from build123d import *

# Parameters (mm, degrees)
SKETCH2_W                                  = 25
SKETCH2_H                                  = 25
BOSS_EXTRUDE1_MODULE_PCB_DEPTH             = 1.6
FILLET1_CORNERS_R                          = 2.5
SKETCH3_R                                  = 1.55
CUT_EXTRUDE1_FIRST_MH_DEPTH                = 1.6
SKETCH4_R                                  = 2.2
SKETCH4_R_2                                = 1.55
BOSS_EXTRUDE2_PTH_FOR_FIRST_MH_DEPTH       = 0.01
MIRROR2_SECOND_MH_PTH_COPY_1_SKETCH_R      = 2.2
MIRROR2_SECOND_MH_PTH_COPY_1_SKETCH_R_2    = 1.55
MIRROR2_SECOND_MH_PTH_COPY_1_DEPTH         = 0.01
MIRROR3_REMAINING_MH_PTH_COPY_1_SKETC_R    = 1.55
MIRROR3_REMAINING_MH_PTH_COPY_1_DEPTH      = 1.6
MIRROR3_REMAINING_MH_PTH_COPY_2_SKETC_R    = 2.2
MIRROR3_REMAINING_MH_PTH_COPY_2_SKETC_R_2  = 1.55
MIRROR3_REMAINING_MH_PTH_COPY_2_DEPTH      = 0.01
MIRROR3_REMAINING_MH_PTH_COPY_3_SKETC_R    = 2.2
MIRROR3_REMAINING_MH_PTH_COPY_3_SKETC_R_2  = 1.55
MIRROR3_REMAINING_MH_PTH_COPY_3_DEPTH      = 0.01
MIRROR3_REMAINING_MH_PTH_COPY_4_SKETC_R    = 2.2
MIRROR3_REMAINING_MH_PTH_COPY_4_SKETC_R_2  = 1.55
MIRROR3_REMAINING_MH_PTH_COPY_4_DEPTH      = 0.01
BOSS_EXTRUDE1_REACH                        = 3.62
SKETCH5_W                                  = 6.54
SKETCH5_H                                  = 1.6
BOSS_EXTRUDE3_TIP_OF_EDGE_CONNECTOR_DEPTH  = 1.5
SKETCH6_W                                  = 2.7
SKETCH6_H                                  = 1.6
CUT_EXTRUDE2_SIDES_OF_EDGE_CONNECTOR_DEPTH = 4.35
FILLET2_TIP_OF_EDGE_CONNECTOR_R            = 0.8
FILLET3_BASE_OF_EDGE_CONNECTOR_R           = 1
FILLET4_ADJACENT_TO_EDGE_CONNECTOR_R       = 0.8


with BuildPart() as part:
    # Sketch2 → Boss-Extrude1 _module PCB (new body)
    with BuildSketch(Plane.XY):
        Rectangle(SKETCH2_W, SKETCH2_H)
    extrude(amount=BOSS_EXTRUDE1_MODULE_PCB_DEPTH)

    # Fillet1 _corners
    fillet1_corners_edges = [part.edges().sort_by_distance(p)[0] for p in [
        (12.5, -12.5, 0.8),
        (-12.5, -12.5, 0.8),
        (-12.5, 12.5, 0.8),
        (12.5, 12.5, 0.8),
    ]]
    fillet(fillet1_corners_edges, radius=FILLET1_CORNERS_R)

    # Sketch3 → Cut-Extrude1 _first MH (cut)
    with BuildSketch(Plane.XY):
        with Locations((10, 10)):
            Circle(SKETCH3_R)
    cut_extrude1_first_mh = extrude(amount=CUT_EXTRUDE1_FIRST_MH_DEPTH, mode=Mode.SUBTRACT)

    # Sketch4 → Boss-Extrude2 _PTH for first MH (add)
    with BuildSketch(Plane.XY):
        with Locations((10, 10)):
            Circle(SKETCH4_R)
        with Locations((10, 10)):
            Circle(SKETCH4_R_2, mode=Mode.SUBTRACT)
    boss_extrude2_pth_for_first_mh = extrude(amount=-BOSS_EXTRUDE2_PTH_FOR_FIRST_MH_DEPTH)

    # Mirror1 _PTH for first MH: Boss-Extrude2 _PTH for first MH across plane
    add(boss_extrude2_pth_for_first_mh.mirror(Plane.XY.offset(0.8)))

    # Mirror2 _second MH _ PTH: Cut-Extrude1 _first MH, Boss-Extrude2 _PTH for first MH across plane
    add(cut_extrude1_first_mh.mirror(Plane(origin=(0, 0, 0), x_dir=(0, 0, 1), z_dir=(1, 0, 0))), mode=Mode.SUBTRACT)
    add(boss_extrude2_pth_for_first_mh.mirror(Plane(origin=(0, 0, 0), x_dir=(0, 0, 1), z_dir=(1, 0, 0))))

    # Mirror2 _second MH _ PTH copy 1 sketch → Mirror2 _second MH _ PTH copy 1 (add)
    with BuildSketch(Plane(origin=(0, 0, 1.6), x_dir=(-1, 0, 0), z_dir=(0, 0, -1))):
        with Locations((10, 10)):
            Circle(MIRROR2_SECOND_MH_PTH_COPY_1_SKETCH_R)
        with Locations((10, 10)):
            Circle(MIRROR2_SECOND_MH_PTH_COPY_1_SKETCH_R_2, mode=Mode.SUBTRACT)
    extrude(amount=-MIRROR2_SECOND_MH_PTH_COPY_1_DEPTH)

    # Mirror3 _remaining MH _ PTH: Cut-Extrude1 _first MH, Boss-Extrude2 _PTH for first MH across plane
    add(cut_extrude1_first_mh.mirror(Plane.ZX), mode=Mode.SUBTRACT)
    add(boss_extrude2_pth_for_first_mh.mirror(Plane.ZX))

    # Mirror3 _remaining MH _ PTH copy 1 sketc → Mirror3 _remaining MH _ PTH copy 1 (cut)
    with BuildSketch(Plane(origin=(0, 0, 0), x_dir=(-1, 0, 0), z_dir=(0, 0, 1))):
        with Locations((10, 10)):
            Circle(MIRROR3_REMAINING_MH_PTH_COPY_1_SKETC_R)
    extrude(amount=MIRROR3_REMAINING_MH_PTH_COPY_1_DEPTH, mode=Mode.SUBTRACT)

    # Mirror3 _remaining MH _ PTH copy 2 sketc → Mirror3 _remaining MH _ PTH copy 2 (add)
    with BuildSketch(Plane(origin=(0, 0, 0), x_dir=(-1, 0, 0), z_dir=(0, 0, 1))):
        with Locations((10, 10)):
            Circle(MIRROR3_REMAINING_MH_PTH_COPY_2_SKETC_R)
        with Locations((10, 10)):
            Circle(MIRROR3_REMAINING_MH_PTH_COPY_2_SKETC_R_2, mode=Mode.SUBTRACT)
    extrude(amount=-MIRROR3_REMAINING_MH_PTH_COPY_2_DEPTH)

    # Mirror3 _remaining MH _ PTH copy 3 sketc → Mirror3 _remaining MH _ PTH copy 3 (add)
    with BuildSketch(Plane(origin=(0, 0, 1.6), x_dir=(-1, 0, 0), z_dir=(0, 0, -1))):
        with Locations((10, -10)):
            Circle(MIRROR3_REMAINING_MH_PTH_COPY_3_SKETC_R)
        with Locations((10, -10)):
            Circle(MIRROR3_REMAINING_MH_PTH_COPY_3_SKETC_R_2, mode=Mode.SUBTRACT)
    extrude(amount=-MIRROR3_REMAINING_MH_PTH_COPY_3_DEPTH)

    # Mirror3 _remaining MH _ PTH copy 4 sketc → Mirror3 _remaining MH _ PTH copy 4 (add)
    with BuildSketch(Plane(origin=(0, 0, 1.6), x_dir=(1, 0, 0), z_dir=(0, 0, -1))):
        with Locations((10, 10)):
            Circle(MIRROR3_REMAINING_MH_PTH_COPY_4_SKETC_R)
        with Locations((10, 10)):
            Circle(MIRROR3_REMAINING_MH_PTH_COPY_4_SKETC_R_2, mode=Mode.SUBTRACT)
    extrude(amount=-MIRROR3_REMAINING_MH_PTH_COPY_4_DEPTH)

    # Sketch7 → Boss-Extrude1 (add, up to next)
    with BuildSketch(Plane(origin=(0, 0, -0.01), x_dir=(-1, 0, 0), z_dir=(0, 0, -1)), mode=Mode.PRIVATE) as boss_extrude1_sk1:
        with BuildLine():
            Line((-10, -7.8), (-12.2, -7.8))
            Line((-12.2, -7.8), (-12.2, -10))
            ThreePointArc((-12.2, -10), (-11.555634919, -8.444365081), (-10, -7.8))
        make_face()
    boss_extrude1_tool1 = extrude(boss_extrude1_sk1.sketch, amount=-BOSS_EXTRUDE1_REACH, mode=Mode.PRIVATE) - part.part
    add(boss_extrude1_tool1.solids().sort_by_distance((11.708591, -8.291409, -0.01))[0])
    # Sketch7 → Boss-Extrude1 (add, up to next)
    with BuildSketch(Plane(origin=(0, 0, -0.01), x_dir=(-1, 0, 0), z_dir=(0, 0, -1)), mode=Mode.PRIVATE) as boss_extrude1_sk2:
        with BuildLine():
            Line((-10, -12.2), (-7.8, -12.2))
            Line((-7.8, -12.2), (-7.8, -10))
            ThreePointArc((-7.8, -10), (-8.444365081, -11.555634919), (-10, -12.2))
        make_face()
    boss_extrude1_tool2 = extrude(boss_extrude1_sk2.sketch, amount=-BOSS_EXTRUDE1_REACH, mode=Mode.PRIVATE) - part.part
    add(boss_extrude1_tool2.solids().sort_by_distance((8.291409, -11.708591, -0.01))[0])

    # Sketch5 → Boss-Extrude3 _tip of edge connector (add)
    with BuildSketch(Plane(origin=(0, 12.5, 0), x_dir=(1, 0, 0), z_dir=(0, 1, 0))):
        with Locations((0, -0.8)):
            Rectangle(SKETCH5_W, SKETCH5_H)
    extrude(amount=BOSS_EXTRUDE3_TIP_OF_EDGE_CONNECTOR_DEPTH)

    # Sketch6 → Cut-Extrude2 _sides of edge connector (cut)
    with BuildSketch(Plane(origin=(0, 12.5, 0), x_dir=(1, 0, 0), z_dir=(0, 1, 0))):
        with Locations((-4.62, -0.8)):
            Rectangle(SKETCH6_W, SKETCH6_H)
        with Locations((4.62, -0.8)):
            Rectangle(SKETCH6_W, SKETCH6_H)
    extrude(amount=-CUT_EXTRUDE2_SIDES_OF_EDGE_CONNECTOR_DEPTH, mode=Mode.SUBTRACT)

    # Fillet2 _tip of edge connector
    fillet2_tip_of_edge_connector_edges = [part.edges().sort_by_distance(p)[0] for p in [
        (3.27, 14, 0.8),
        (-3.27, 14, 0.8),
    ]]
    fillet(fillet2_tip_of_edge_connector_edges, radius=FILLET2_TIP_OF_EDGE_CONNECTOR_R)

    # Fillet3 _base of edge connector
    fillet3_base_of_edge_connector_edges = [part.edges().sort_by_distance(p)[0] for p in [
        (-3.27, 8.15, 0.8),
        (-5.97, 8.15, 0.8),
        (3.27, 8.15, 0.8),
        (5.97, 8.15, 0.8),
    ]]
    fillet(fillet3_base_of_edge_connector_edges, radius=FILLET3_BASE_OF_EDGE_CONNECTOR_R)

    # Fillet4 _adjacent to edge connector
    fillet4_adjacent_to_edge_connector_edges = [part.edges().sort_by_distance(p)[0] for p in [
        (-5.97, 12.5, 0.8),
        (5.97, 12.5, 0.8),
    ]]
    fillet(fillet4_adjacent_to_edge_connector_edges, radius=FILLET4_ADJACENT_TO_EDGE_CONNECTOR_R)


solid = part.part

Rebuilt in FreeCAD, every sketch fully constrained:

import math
import FreeCAD as App
import Part
import Sketcher


def edges_at(feature, points):
    """Names of the edges that pass closest to the given points."""
    edges = feature.Shape.Edges
    near = lambda p: min(range(len(edges)), key=lambda i: edges[i].distToShape(Part.Vertex(*p))[0])
    return sorted({f"Edge{near(p) + 1}" for p in points})

doc = App.newDocument("Part")
body = doc.addObject("PartDesign::Body", "Body")

# Sketch on XY plane
sketch1 = body.newObject("Sketcher::SketchObject", "Sketch")
sketch1.AttachmentSupport = (doc.getObject("XY_Plane"), [""])
sketch1.MapMode = "FlatFace"
sketch1.addGeometry([
    Part.LineSegment(App.Vector(-12, 12, 0), App.Vector(-12, -12, 0)),
    Part.LineSegment(App.Vector(-12, -12, 0), App.Vector(12, -12, 0)),
    Part.LineSegment(App.Vector(12, -12, 0), App.Vector(12, 12, 0)),
    Part.LineSegment(App.Vector(12, 12, 0), App.Vector(-12, 12, 0)),
], False)
sketch1.addConstraint([
    Sketcher.Constraint("Coincident", 0, 2, 1, 1),
    Sketcher.Constraint("Coincident", 1, 2, 2, 1),
    Sketcher.Constraint("Coincident", 2, 2, 3, 1),
    Sketcher.Constraint("Coincident", 3, 2, 0, 1),
    Sketcher.Constraint("Vertical", 0),
    Sketcher.Constraint("Horizontal", 1),
    Sketcher.Constraint("Vertical", 2),
    Sketcher.Constraint("Horizontal", 3),
    Sketcher.Constraint("Symmetric", 0, 2, 2, 2, -1, 1),
    Sketcher.Constraint("Equal", 3, 0),
    Sketcher.Constraint("DistanceX", 1, 1, 1, 2, 25.0),
])
pad1 = body.newObject("PartDesign::Pad", "Pad")
pad1.Profile = sketch1
pad1.Length = 1.6
doc.recompute()

fillet = body.newObject("PartDesign::Fillet", "Fillet")
fillet.Base = (pad1, edges_at(pad1, [
    (12.5, -12.5, 0.8),
    (-12.5, -12.5, 0.8),
    (-12.5, 12.5, 0.8),
    (12.5, 12.5, 0.8),
]))
fillet.Radius = 2.5

# Sketch on XY plane
sketch2 = body.newObject("Sketcher::SketchObject", "Sketch001")
sketch2.AttachmentSupport = (doc.getObject("XY_Plane"), [""])
sketch2.MapMode = "FlatFace"
sketch2.addGeometry(Part.Circle(App.Vector(10, 10, 0), App.Vector(0, 0, 1), 1.6), False)
sketch2.addConstraint([
    Sketcher.Constraint("Diameter", 0, 3.1),
    Sketcher.Constraint("DistanceX", -1, 1, 0, 3, 10.0),
    Sketcher.Constraint("DistanceY", -1, 1, 0, 3, 10.0),
])
pocket1 = body.newObject("PartDesign::Pocket", "Pocket")
pocket1.Profile = sketch2
pocket1.Length = 1.6
pocket1.Reversed = True

# Sketch on XY plane
sketch3 = body.newObject("Sketcher::SketchObject", "Sketch002")
sketch3.AttachmentSupport = (doc.getObject("XY_Plane"), [""])
sketch3.MapMode = "FlatFace"
sketch3.addGeometry([
    Part.Circle(App.Vector(10, 10, 0), App.Vector(0, 0, 1), 2.2),
    Part.Circle(App.Vector(10, 10, 0), App.Vector(0, 0, 1), 1.6),
], False)
sketch3.addConstraint([
    Sketcher.Constraint("Coincident", 1, 3, 0, 3),
    Sketcher.Constraint("Diameter", 0, 4.4),
    Sketcher.Constraint("Diameter", 1, 3.1),
    Sketcher.Constraint("DistanceX", -1, 1, 0, 3, 10.0),
    Sketcher.Constraint("DistanceY", -1, 1, 0, 3, 10.0),
])
pad2 = body.newObject("PartDesign::Pad", "Pad001")
pad2.Profile = sketch3
pad2.Length = 0.01
pad2.Reversed = True
doc.recompute()

datumplane = body.newObject("PartDesign::Plane", "DatumPlane")
datumplane.AttachmentSupport = (doc.getObject("XY_Plane"), [""])
datumplane.MapMode = "FlatFace"
datumplane.AttachmentOffset = App.Placement(App.Vector(0, 0, 0.8), App.Rotation())
mirrored = body.newObject("PartDesign::Mirrored", "Mirrored")
mirrored.Originals = [pad2]
mirrored.MirrorPlane = (datumplane, [""])
body.Tip = mirrored
doc.recompute()

mirrored2 = body.newObject("PartDesign::Mirrored", "Mirrored001")
mirrored2.Originals = [pocket1, pad2]
mirrored2.MirrorPlane = (doc.getObject("YZ_Plane"), [""])
body.Tip = mirrored2

# Sketch on XY plane
sketch4 = body.newObject("Sketcher::SketchObject", "Sketch003")
sketch4.AttachmentSupport = (doc.getObject("XY_Plane"), [""])
sketch4.MapMode = "FlatFace"
sketch4.AttachmentOffset = App.Placement(App.Vector(0, 0, 1.6), App.Rotation())
sketch4.addGeometry([
    Part.Circle(App.Vector(-10, 10, 0), App.Vector(0, 0, 1), 2.2),
    Part.Circle(App.Vector(-10, 10, 0), App.Vector(0, 0, 1), 1.6),
], False)
sketch4.addConstraint([
    Sketcher.Constraint("Coincident", 1, 3, 0, 3),
    Sketcher.Constraint("Diameter", 0, 4.4),
    Sketcher.Constraint("Diameter", 1, 3.1),
    Sketcher.Constraint("DistanceX", 0, 3, -1, 1, 10.0),
    Sketcher.Constraint("DistanceY", -1, 1, 0, 3, 10.0),
])
pad3 = body.newObject("PartDesign::Pad", "Pad002")
pad3.Profile = sketch4
pad3.Length = 0.01
doc.recompute()

mirrored3 = body.newObject("PartDesign::Mirrored", "Mirrored002")
mirrored3.Originals = [pocket1, pad2]
mirrored3.MirrorPlane = (doc.getObject("XZ_Plane"), [""])
body.Tip = mirrored3

# Sketch on XY plane
sketch5 = body.newObject("Sketcher::SketchObject", "Sketch004")
sketch5.AttachmentSupport = (doc.getObject("XY_Plane"), [""])
sketch5.MapMode = "FlatFace"
sketch5.addGeometry(Part.Circle(App.Vector(-10, -10, 0), App.Vector(0, 0, 1), 1.6), False)
sketch5.addConstraint([
    Sketcher.Constraint("Diameter", 0, 3.1),
    Sketcher.Constraint("DistanceX", 0, 3, -1, 1, 10.0),
    Sketcher.Constraint("DistanceY", 0, 3, -1, 1, 10.0),
])
pocket2 = body.newObject("PartDesign::Pocket", "Pocket001")
pocket2.Profile = sketch5
pocket2.Length = 1.6
pocket2.Reversed = True

# Sketch on XY plane
sketch6 = body.newObject("Sketcher::SketchObject", "Sketch005")
sketch6.AttachmentSupport = (doc.getObject("XY_Plane"), [""])
sketch6.MapMode = "FlatFace"
sketch6.addGeometry([
    Part.Circle(App.Vector(-10, -10, 0), App.Vector(0, 0, 1), 2.2),
    Part.Circle(App.Vector(-10, -10, 0), App.Vector(0, 0, 1), 1.6),
], False)
sketch6.addConstraint([
    Sketcher.Constraint("Coincident", 1, 3, 0, 3),
    Sketcher.Constraint("Diameter", 0, 4.4),
    Sketcher.Constraint("Diameter", 1, 3.1),
    Sketcher.Constraint("DistanceX", 0, 3, -1, 1, 10.0),
    Sketcher.Constraint("DistanceY", 0, 3, -1, 1, 10.0),
])
pad4 = body.newObject("PartDesign::Pad", "Pad003")
pad4.Profile = sketch6
pad4.Length = 0.01
pad4.Reversed = True

# Sketch on XY plane
sketch7 = body.newObject("Sketcher::SketchObject", "Sketch006")
sketch7.AttachmentSupport = (doc.getObject("XY_Plane"), [""])
sketch7.MapMode = "FlatFace"
sketch7.AttachmentOffset = App.Placement(App.Vector(0, 0, 1.6), App.Rotation())
sketch7.addGeometry([
    Part.Circle(App.Vector(-10, -10, 0), App.Vector(0, 0, 1), 2.2),
    Part.Circle(App.Vector(-10, -10, 0), App.Vector(0, 0, 1), 1.6),
], False)
sketch7.addConstraint([
    Sketcher.Constraint("Coincident", 1, 3, 0, 3),
    Sketcher.Constraint("Diameter", 0, 4.4),
    Sketcher.Constraint("Diameter", 1, 3.1),
    Sketcher.Constraint("DistanceX", 0, 3, -1, 1, 10.0),
    Sketcher.Constraint("DistanceY", 0, 3, -1, 1, 10.0),
])
pad5 = body.newObject("PartDesign::Pad", "Pad004")
pad5.Profile = sketch7
pad5.Length = 0.01

# Sketch on XY plane
sketch8 = body.newObject("Sketcher::SketchObject", "Sketch007")
sketch8.AttachmentSupport = (doc.getObject("XY_Plane"), [""])
sketch8.MapMode = "FlatFace"
sketch8.AttachmentOffset = App.Placement(App.Vector(0, 0, 1.6), App.Rotation())
sketch8.addGeometry([
    Part.Circle(App.Vector(10, -10, 0), App.Vector(0, 0, 1), 2.2),
    Part.Circle(App.Vector(10, -10, 0), App.Vector(0, 0, 1), 1.6),
], False)
sketch8.addConstraint([
    Sketcher.Constraint("Coincident", 1, 3, 0, 3),
    Sketcher.Constraint("Diameter", 0, 4.4),
    Sketcher.Constraint("Diameter", 1, 3.1),
    Sketcher.Constraint("DistanceX", -1, 1, 0, 3, 10.0),
    Sketcher.Constraint("DistanceY", 0, 3, -1, 1, 10.0),
])
pad6 = body.newObject("PartDesign::Pad", "Pad005")
pad6.Profile = sketch8
pad6.Length = 0.01

# Sketch on XY plane
sketch9 = body.newObject("Sketcher::SketchObject", "Sketch008")
sketch9.AttachmentSupport = (doc.getObject("XY_Plane"), [""])
sketch9.MapMode = "FlatFace"
sketch9.AttachmentOffset = App.Placement(App.Vector(0, 0, -0.01), App.Rotation())
sketch9.addGeometry([
    Part.LineSegment(App.Vector(10, -7.8, 0), App.Vector(12.2, -7.8, 0)),
    Part.LineSegment(App.Vector(12.2, -7.8, 0), App.Vector(12.2, -10, 0)),
    Part.ArcOfCircle(Part.Circle(App.Vector(10, -10, 0), App.Vector(0, 0, 1), 2.2), math.radians(0), math.radians(90)),
], False)
sketch9.addConstraint([
    Sketcher.Constraint("Coincident", 0, 2, 1, 1),
    Sketcher.Constraint("Tangent", 1, 2, 2, 1),
    Sketcher.Constraint("Tangent", 2, 2, 0, 1),
    Sketcher.Constraint("Horizontal", 0),
    Sketcher.Constraint("Vertical", 1),
    Sketcher.Constraint("Radius", 2, 2.2),
    Sketcher.Constraint("DistanceX", -1, 1, 2, 3, 10.0),
    Sketcher.Constraint("DistanceY", 2, 3, -1, 1, 10.0),
])
pad7 = body.newObject("PartDesign::Pad", "Pad006")
pad7.Profile = sketch9
pad7.Type = "UpToFirst"

# Sketch on XY plane
sketch10 = body.newObject("Sketcher::SketchObject", "Sketch009")
sketch10.AttachmentSupport = (doc.getObject("XY_Plane"), [""])
sketch10.MapMode = "FlatFace"
sketch10.AttachmentOffset = App.Placement(App.Vector(0, 0, -0.01), App.Rotation())
sketch10.addGeometry([
    Part.LineSegment(App.Vector(10, -12.2, 0), App.Vector(7.8, -12.2, 0)),
    Part.LineSegment(App.Vector(7.8, -12.2, 0), App.Vector(7.8, -10, 0)),
    Part.ArcOfCircle(Part.Circle(App.Vector(10, -10, 0), App.Vector(0, 0, 1), 2.2), math.radians(180), math.radians(270)),
], False)
sketch10.addConstraint([
    Sketcher.Constraint("Coincident", 0, 2, 1, 1),
    Sketcher.Constraint("Tangent", 1, 2, 2, 1),
    Sketcher.Constraint("Tangent", 2, 2, 0, 1),
    Sketcher.Constraint("Horizontal", 0),
    Sketcher.Constraint("Vertical", 1),
    Sketcher.Constraint("Radius", 2, 2.2),
    Sketcher.Constraint("DistanceX", -1, 1, 2, 3, 10.0),
    Sketcher.Constraint("DistanceY", 2, 3, -1, 1, 10.0),
])
pad8 = body.newObject("PartDesign::Pad", "Pad007")
pad8.Profile = sketch10
pad8.Type = "UpToFirst"

# Sketch on XZ plane
sketch11 = body.newObject("Sketcher::SketchObject", "Sketch010")
sketch11.AttachmentSupport = (doc.getObject("XZ_Plane"), [""])
sketch11.MapMode = "FlatFace"
sketch11.AttachmentOffset = App.Placement(App.Vector(0, 0, -12.5), App.Rotation())
sketch11.addGeometry([
    Part.LineSegment(App.Vector(-3.3, 0, 0), App.Vector(-3.3, 1.6, 0)),
    Part.LineSegment(App.Vector(-3.3, 1.6, 0), App.Vector(3.3, 1.6, 0)),
    Part.LineSegment(App.Vector(3.3, 1.6, 0), App.Vector(3.3, 0, 0)),
    Part.LineSegment(App.Vector(3.3, 0, 0), App.Vector(-3.3, 0, 0)),
], False)
sketch11.addConstraint([
    Sketcher.Constraint("Coincident", 0, 2, 1, 1),
    Sketcher.Constraint("Coincident", 1, 2, 2, 1),
    Sketcher.Constraint("Coincident", 2, 2, 3, 1),
    Sketcher.Constraint("Coincident", 3, 2, 0, 1),
    Sketcher.Constraint("Vertical", 0),
    Sketcher.Constraint("Horizontal", 1),
    Sketcher.Constraint("Vertical", 2),
    Sketcher.Constraint("Horizontal", 3),
    Sketcher.Constraint("Symmetric", 2, 2, 3, 2, -1, 1),
    Sketcher.Constraint("DistanceY", 0, 1, 0, 2, 1.6),
    Sketcher.Constraint("DistanceX", 1, 1, 1, 2, 6.54),
])
pad9 = body.newObject("PartDesign::Pad", "Pad008")
pad9.Profile = sketch11
pad9.Length = 1.5
pad9.Reversed = True

# Sketch on XZ plane
sketch12 = body.newObject("Sketcher::SketchObject", "Sketch011")
sketch12.AttachmentSupport = (doc.getObject("XZ_Plane"), [""])
sketch12.MapMode = "FlatFace"
sketch12.AttachmentOffset = App.Placement(App.Vector(0, 0, -12.5), App.Rotation())
sketch12.addGeometry([
    Part.LineSegment(App.Vector(-6, 0, 0), App.Vector(-6, 1.6, 0)),  # 0
    Part.LineSegment(App.Vector(-6, 1.6, 0), App.Vector(-3.3, 1.6, 0)),  # 1
    Part.LineSegment(App.Vector(-3.3, 1.6, 0), App.Vector(-3.3, 0, 0)),  # 2
    Part.LineSegment(App.Vector(-3.3, 0, 0), App.Vector(-6, 0, 0)),  # 3
    Part.LineSegment(App.Vector(3.3, 0, 0), App.Vector(3.3, 1.6, 0)),  # 4
    Part.LineSegment(App.Vector(3.3, 1.6, 0), App.Vector(6, 1.6, 0)),  # 5
    Part.LineSegment(App.Vector(6, 1.6, 0), App.Vector(6, 0, 0)),  # 6
    Part.LineSegment(App.Vector(6, 0, 0), App.Vector(3.3, 0, 0)),  # 7
], False)
sketch12.addConstraint([
    Sketcher.Constraint("Coincident", 0, 2, 1, 1),
    Sketcher.Constraint("Coincident", 1, 2, 2, 1),
    Sketcher.Constraint("Coincident", 2, 2, 3, 1),
    Sketcher.Constraint("Coincident", 3, 2, 0, 1),
    Sketcher.Constraint("Coincident", 4, 2, 5, 1),
    Sketcher.Constraint("Coincident", 5, 2, 6, 1),
    Sketcher.Constraint("Coincident", 6, 2, 7, 1),
    Sketcher.Constraint("Coincident", 7, 2, 4, 1),
    Sketcher.Constraint("Vertical", 0),
    Sketcher.Constraint("Horizontal", 1),
    Sketcher.Constraint("Vertical", 2),
    Sketcher.Constraint("Horizontal", 3),
    Sketcher.Constraint("Vertical", 4),
    Sketcher.Constraint("Horizontal", 5),
    Sketcher.Constraint("Vertical", 6),
    Sketcher.Constraint("Horizontal", 7),
    Sketcher.Constraint("Symmetric", 3, 2, 6, 2, -1, 1),
    Sketcher.Constraint("Symmetric", 1, 2, 4, 2, -2),
    Sketcher.Constraint("PointOnObject", 2, 2, -1),
    Sketcher.Constraint("DistanceX", 1, 1, 1, 2, 2.7),
    Sketcher.Constraint("DistanceY", 0, 1, 0, 2, 1.6),
    Sketcher.Constraint("DistanceX", 0, 2, -1, 1, 5.97),
])
pocket3 = body.newObject("PartDesign::Pocket", "Pocket002")
pocket3.Profile = sketch12
pocket3.Length = 4.35
pocket3.Reversed = True
doc.recompute()

fillet2 = body.newObject("PartDesign::Fillet", "Fillet001")
fillet2.Base = (pocket3, edges_at(pocket3, [(3.27, 14, 0.8), (-3.27, 14, 0.8)]))
fillet2.Radius = 0.8
doc.recompute()

fillet3 = body.newObject("PartDesign::Fillet", "Fillet002")
fillet3.Base = (fillet2, edges_at(fillet2, [
    (-3.27, 8.15, 0.8),
    (-5.97, 8.15, 0.8),
    (3.27, 8.15, 0.8),
    (5.97, 8.15, 0.8),
]))
fillet3.Radius = 1
doc.recompute()

fillet4 = body.newObject("PartDesign::Fillet", "Fillet003")
fillet4.Base = (fillet3, edges_at(fillet3, [(-5.97, 12.5, 0.8), (5.97, 12.5, 0.8)]))
fillet4.Radius = 0.8

doc.recompute()
